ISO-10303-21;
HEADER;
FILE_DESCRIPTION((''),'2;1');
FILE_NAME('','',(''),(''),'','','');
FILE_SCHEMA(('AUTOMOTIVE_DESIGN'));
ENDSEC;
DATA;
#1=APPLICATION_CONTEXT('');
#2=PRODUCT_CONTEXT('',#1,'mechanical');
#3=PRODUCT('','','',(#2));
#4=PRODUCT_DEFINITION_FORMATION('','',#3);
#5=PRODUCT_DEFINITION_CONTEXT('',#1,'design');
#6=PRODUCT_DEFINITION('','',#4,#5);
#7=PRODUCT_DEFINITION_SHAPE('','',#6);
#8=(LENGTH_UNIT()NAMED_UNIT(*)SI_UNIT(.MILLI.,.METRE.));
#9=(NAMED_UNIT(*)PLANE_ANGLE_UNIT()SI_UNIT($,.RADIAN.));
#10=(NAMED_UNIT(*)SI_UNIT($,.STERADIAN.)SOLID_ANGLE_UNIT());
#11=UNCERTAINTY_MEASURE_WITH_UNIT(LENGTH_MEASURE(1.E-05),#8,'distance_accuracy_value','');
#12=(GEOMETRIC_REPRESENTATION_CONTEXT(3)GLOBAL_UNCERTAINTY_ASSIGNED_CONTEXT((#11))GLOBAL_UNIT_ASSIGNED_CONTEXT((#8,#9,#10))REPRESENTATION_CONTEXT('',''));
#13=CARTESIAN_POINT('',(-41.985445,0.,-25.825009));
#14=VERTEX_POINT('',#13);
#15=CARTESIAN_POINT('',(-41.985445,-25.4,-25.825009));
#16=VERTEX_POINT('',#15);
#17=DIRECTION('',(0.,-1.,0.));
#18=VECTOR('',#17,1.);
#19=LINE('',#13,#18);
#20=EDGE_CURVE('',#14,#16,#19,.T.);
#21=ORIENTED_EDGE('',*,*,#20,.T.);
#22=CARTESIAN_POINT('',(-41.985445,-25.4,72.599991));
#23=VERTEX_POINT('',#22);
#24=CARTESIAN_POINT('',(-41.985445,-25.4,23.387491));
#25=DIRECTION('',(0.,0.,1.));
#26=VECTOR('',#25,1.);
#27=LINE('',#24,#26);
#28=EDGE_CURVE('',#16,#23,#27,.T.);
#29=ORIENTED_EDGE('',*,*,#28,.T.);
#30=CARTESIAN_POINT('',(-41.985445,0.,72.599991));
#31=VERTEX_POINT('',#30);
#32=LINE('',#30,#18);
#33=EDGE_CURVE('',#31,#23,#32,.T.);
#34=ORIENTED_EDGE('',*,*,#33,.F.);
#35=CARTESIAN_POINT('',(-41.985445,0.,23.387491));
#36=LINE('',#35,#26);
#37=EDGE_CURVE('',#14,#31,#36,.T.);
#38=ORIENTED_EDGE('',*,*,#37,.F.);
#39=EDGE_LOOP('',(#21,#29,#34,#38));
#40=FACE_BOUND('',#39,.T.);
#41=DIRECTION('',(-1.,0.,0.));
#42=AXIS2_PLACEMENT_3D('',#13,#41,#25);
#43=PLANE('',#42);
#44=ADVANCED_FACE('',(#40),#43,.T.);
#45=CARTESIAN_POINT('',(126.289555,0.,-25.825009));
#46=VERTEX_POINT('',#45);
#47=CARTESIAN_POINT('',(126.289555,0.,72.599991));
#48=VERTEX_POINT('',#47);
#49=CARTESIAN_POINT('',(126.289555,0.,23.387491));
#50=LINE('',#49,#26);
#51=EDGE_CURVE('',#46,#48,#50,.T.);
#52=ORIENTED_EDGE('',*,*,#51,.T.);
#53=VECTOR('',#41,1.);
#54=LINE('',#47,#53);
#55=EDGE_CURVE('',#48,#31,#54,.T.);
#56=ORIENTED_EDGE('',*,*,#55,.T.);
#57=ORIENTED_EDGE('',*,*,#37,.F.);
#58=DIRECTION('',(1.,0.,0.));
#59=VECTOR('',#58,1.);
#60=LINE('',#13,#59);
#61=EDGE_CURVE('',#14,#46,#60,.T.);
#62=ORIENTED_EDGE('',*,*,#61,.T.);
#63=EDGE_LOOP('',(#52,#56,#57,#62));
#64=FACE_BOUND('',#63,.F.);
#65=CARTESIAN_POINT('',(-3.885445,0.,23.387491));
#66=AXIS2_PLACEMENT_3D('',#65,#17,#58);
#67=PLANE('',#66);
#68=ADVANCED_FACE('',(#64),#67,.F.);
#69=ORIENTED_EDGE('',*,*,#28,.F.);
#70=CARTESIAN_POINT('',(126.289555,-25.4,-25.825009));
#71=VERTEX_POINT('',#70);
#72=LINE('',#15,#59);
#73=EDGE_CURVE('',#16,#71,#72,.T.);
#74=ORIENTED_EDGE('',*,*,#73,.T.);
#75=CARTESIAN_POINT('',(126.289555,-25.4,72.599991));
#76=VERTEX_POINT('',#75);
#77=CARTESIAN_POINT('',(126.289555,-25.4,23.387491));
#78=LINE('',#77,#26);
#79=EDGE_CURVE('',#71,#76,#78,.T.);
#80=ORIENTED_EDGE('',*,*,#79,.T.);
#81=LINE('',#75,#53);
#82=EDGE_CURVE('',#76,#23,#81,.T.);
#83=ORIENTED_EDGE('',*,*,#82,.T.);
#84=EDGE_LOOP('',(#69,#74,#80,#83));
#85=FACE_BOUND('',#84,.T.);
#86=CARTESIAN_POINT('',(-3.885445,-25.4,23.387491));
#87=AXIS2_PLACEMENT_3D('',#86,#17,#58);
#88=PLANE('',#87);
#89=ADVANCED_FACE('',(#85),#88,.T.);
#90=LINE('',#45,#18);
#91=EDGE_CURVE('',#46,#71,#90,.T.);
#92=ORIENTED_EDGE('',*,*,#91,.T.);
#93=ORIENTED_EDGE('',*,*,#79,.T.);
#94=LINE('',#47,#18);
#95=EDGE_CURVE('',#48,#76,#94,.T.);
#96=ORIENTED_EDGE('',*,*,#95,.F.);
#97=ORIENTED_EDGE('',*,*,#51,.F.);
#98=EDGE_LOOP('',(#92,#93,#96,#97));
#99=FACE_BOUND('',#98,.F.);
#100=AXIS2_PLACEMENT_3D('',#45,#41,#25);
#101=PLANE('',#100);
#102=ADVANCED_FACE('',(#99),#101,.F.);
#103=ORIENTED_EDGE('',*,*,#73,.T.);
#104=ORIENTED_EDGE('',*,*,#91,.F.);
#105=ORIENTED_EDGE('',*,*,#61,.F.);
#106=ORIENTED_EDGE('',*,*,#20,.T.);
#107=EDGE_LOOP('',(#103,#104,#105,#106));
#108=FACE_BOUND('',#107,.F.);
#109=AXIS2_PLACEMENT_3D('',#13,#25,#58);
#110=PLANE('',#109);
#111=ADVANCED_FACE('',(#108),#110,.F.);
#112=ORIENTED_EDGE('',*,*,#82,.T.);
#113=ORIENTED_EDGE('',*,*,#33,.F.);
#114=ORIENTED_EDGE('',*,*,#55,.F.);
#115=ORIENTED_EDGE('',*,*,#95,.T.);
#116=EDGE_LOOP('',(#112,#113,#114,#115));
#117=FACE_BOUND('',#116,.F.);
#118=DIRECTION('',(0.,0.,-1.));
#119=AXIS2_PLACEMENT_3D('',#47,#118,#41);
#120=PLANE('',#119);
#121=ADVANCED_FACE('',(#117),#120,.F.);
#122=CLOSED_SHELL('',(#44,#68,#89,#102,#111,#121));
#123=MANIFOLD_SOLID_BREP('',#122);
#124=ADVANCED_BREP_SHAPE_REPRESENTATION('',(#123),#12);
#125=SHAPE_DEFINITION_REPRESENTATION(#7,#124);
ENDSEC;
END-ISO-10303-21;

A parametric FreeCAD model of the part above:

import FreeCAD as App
import Part
import Sketcher

V = App.Vector
Q = App.Units.Quantity


def add_polygon(sketch, points):
    """Adds a closed chain of lines whose ends are joined by coincident constraints."""
    first, n = sketch.GeometryCount, len(points)
    for a, b in zip(points, points[1:] + points[:1]):
        sketch.addGeometry(Part.LineSegment(App.Vector(*a, 0), App.Vector(*b, 0)), False)
    for i in range(n):
        sketch.addConstraint(Sketcher.Constraint("Coincident", first + i, 2, first + (i + 1) % n, 1))

doc = App.newDocument("Part")
body = doc.addObject("PartDesign::Body", "Body")

sketch1 = body.newObject("Sketcher::SketchObject", "Sketch")
sketch1.AttachmentSupport = (doc.getObject("XZ_Plane"), [""])
sketch1.MapMode = "FlatFace"
add_polygon(sketch1, [(-42, 73), (-42, -26), (126, -26), (126, 73)])
sketch1.addConstraint([
    Sketcher.Constraint("Vertical", 0),
    Sketcher.Constraint("Horizontal", 1),
    Sketcher.Constraint("Vertical", 2),
    Sketcher.Constraint("Horizontal", 3),
    Sketcher.Constraint("DistanceX", 1, 1, 1, 2, Q("6.625 in")),
    Sketcher.Constraint("DistanceY", 0, 2, 0, 1, Q("3.875 in")),
    Sketcher.Constraint("DistanceY", 0, 2, -1, 1, 25.825009),
    Sketcher.Constraint("DistanceX", 0, 2, -1, 1, 41.985445),
])
pad1 = body.newObject("PartDesign::Pad", "Pad")
pad1.Profile = sketch1
pad1.Length = Q("1 in")

doc.recompute()
